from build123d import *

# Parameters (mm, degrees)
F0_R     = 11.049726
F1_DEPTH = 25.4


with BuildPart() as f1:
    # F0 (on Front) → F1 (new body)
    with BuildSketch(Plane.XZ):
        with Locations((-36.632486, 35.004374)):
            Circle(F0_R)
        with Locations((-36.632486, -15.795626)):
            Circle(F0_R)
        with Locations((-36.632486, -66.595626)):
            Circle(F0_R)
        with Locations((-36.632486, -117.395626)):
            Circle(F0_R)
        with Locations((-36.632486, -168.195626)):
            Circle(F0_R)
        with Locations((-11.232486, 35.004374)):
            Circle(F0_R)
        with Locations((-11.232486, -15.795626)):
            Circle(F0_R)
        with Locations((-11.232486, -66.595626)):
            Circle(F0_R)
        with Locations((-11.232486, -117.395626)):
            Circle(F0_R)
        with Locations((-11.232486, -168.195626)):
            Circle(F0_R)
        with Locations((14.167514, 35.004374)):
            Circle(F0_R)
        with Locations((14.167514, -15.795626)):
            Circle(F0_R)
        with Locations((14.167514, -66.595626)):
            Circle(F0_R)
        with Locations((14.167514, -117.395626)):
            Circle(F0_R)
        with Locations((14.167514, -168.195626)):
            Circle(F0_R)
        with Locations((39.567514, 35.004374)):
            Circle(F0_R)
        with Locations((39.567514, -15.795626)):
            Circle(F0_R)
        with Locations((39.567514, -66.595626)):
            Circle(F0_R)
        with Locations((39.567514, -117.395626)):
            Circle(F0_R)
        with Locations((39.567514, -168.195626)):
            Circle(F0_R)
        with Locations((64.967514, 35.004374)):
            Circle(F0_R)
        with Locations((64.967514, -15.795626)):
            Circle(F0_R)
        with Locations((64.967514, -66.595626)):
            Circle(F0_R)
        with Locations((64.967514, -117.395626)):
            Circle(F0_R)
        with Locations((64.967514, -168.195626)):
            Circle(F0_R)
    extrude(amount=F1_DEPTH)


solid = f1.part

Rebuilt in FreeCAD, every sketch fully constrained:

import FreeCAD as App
import Part
import Sketcher
Q = App.Units.Quantity

doc = App.newDocument("Part")
body = doc.addObject("PartDesign::Body", "Body")
body.AllowCompound = True

# Sketch on XZ plane
sketch1 = body.newObject("Sketcher::SketchObject", "Sketch")
sketch1.AttachmentSupport = (doc.getObject("XZ_Plane"), [""])
sketch1.MapMode = "FlatFace"
sketch1.addGeometry(Part.Circle(App.Vector(-37, 35, 0), App.Vector(0, 0, 1), 11), False)
sketch1.addGeometry(Part.Circle(App.Vector(-37, -16, 0), App.Vector(0, 0, 1), 11), False)
sketch1.addGeometry(Part.Circle(App.Vector(-37, -67, 0), App.Vector(0, 0, 1), 11), False)
sketch1.addGeometry(Part.Circle(App.Vector(-37, -117, 0), App.Vector(0, 0, 1), 11), False)
sketch1.addGeometry(Part.Circle(App.Vector(-37, -168, 0), App.Vector(0, 0, 1), 11), False)
sketch1.addGeometry(Part.Circle(App.Vector(-11, 35, 0), App.Vector(0, 0, 1), 11), False)
sketch1.addGeometry(Part.Circle(App.Vector(-11, -16, 0), App.Vector(0, 0, 1), 11), False)
sketch1.addGeometry(Part.Circle(App.Vector(-11, -67, 0), App.Vector(0, 0, 1), 11), False)
sketch1.addGeometry(Part.Circle(App.Vector(-11, -117, 0), App.Vector(0, 0, 1), 11), False)
sketch1.addGeometry(Part.Circle(App.Vector(-11, -168, 0), App.Vector(0, 0, 1), 11), False)
sketch1.addGeometry(Part.Circle(App.Vector(14, 35, 0), App.Vector(0, 0, 1), 11), False)
sketch1.addGeometry(Part.Circle(App.Vector(14, -16, 0), App.Vector(0, 0, 1), 11), False)
sketch1.addGeometry(Part.Circle(App.Vector(14, -67, 0), App.Vector(0, 0, 1), 11), False)
sketch1.addGeometry(Part.Circle(App.Vector(14, -117, 0), App.Vector(0, 0, 1), 11), False)
sketch1.addGeometry(Part.Circle(App.Vector(14, -168, 0), App.Vector(0, 0, 1), 11), False)
sketch1.addGeometry(Part.Circle(App.Vector(40, 35, 0), App.Vector(0, 0, 1), 11), False)
sketch1.addGeometry(Part.Circle(App.Vector(40, -16, 0), App.Vector(0, 0, 1), 11), False)
sketch1.addGeometry(Part.Circle(App.Vector(40, -67, 0), App.Vector(0, 0, 1), 11), False)
sketch1.addGeometry(Part.Circle(App.Vector(40, -117, 0), App.Vector(0, 0, 1), 11), False)
sketch1.addGeometry(Part.Circle(App.Vector(40, -168, 0), App.Vector(0, 0, 1), 11), False)
sketch1.addGeometry(Part.Circle(App.Vector(65, 35, 0), App.Vector(0, 0, 1), 11), False)
sketch1.addGeometry(Part.Circle(App.Vector(65, -16, 0), App.Vector(0, 0, 1), 11), False)
sketch1.addGeometry(Part.Circle(App.Vector(65, -67, 0), App.Vector(0, 0, 1), 11), False)
sketch1.addGeometry(Part.Circle(App.Vector(65, -117, 0), App.Vector(0, 0, 1), 11), False)
sketch1.addGeometry(Part.Circle(App.Vector(65, -168, 0), App.Vector(0, 0, 1), 11), False)
sketch1.addConstraint(Sketcher.Constraint("Equal", 0, 1))
sketch1.addConstraint(Sketcher.Constraint("Equal", 1, 2))
sketch1.addConstraint(Sketcher.Constraint("Equal", 2, 3))
sketch1.addConstraint(Sketcher.Constraint("Equal", 3, 4))
sketch1.addConstraint(Sketcher.Constraint("Equal", 4, 5))
sketch1.addConstraint(Sketcher.Constraint("Equal", 5, 6))
sketch1.addConstraint(Sketcher.Constraint("Equal", 6, 7))
sketch1.addConstraint(Sketcher.Constraint("Equal", 7, 8))
sketch1.addConstraint(Sketcher.Constraint("Equal", 8, 9))
sketch1.addConstraint(Sketcher.Constraint("Equal", 9, 10))
sketch1.addConstraint(Sketcher.Constraint("Equal", 10, 11))
sketch1.addConstraint(Sketcher.Constraint("Equal", 11, 12))
sketch1.addConstraint(Sketcher.Constraint("Equal", 12, 13))
sketch1.addConstraint(Sketcher.Constraint("Equal", 13, 14))
sketch1.addConstraint(Sketcher.Constraint("Equal", 14, 15))
sketch1.addConstraint(Sketcher.Constraint("Equal", 15, 16))
sketch1.addConstraint(Sketcher.Constraint("Equal", 16, 17))
sketch1.addConstraint(Sketcher.Constraint("Equal", 17, 18))
sketch1.addConstraint(Sketcher.Constraint("Equal", 18, 19))
sketch1.addConstraint(Sketcher.Constraint("Equal", 19, 20))
sketch1.addConstraint(Sketcher.Constraint("Equal", 20, 21))
sketch1.addConstraint(Sketcher.Constraint("Equal", 21, 22))
sketch1.addConstraint(Sketcher.Constraint("Equal", 22, 23))
sketch1.addConstraint(Sketcher.Constraint("Equal", 23, 24))
sketch1.addConstraint(Sketcher.Constraint("Horizontal", 0, 3, 5, 3))
sketch1.addConstraint(Sketcher.Constraint("Horizontal", 1, 3, 6, 3))
sketch1.addConstraint(Sketcher.Constraint("Horizontal", 2, 3, 7, 3))
sketch1.addConstraint(Sketcher.Constraint("Horizontal", 3, 3, 8, 3))
sketch1.addConstraint(Sketcher.Constraint("Horizontal", 4, 3, 9, 3))
sketch1.addConstraint(Sketcher.Constraint("Horizontal", 5, 3, 10, 3))
sketch1.addConstraint(Sketcher.Constraint("Horizontal", 6, 3, 11, 3))
sketch1.addConstraint(Sketcher.Constraint("Horizontal", 7, 3, 12, 3))
sketch1.addConstraint(Sketcher.Constraint("Horizontal", 8, 3, 13, 3))
sketch1.addConstraint(Sketcher.Constraint("Horizontal", 9, 3, 14, 3))
sketch1.addConstraint(Sketcher.Constraint("Horizontal", 10, 3, 15, 3))
sketch1.addConstraint(Sketcher.Constraint("Horizontal", 11, 3, 16, 3))
sketch1.addConstraint(Sketcher.Constraint("Horizontal", 12, 3, 17, 3))
sketch1.addConstraint(Sketcher.Constraint("Horizontal", 13, 3, 18, 3))
sketch1.addConstraint(Sketcher.Constraint("Horizontal", 14, 3, 19, 3))
sketch1.addConstraint(Sketcher.Constraint("Horizontal", 15, 3, 20, 3))
sketch1.addConstraint(Sketcher.Constraint("Horizontal", 16, 3, 21, 3))
sketch1.addConstraint(Sketcher.Constraint("Horizontal", 17, 3, 22, 3))
sketch1.addConstraint(Sketcher.Constraint("Horizontal", 18, 3, 23, 3))
sketch1.addConstraint(Sketcher.Constraint("Horizontal", 19, 3, 24, 3))
sketch1.addConstraint(Sketcher.Constraint("Vertical", 0, 3, 1, 3))
sketch1.addConstraint(Sketcher.Constraint("Vertical", 1, 3, 2, 3))
sketch1.addConstraint(Sketcher.Constraint("Vertical", 2, 3, 3, 3))
sketch1.addConstraint(Sketcher.Constraint("Vertical", 3, 3, 4, 3))
sketch1.addConstraint(Sketcher.Constraint("Vertical", 5, 3, 6, 3))
sketch1.addConstraint(Sketcher.Constraint("Vertical", 6, 3, 7, 3))
sketch1.addConstraint(Sketcher.Constraint("Vertical", 7, 3, 8, 3))
sketch1.addConstraint(Sketcher.Constraint("Vertical", 8, 3, 9, 3))
sketch1.addConstraint(Sketcher.Constraint("Vertical", 10, 3, 11, 3))
sketch1.addConstraint(Sketcher.Constraint("Vertical", 11, 3, 12, 3))
sketch1.addConstraint(Sketcher.Constraint("Vertical", 12, 3, 13, 3))
sketch1.addConstraint(Sketcher.Constraint("Vertical", 13, 3, 14, 3))
sketch1.addConstraint(Sketcher.Constraint("Vertical", 15, 3, 16, 3))
sketch1.addConstraint(Sketcher.Constraint("Vertical", 16, 3, 17, 3))
sketch1.addConstraint(Sketcher.Constraint("Vertical", 17, 3, 18, 3))
sketch1.addConstraint(Sketcher.Constraint("Vertical", 18, 3, 19, 3))
sketch1.addConstraint(Sketcher.Constraint("Vertical", 20, 3, 21, 3))
sketch1.addConstraint(Sketcher.Constraint("Vertical", 21, 3, 22, 3))
sketch1.addConstraint(Sketcher.Constraint("Vertical", 22, 3, 23, 3))
sketch1.addConstraint(Sketcher.Constraint("Vertical", 23, 3, 24, 3))
sketch1.addConstraint(Sketcher.Constraint("DistanceY", 1, 3, 0, 3, Q("2 in")))
sketch1.addConstraint(Sketcher.Constraint("DistanceY", 2, 3, 1, 3, Q("2 in")))
sketch1.addConstraint(Sketcher.Constraint("DistanceY", 3, 3, 2, 3, Q("2 in")))
sketch1.addConstraint(Sketcher.Constraint("DistanceY", 4, 3, 3, 3, Q("2 in")))
sketch1.addConstraint(Sketcher.Constraint("DistanceX", 0, 3, 5, 3, Q("1 in")))
sketch1.addConstraint(Sketcher.Constraint("DistanceX", 5, 3, 10, 3, Q("1 in")))
sketch1.addConstraint(Sketcher.Constraint("DistanceX", 10, 3, 15, 3, Q("1 in")))
sketch1.addConstraint(Sketcher.Constraint("DistanceX", 15, 3, 20, 3, Q("1 in")))
sketch1.addConstraint(Sketcher.Constraint("Diameter", 0, 22.099452))
sketch1.addConstraint(Sketcher.Constraint("DistanceX", 0, 3, -1, 1, 36.632486))
sketch1.addConstraint(Sketcher.Constraint("DistanceY", -1, 1, 0, 3, 35.004374))
pad1 = body.newObject("PartDesign::Pad", "Pad")
pad1.Profile = sketch1
pad1.Length = Q("1 in")

doc.recompute()
